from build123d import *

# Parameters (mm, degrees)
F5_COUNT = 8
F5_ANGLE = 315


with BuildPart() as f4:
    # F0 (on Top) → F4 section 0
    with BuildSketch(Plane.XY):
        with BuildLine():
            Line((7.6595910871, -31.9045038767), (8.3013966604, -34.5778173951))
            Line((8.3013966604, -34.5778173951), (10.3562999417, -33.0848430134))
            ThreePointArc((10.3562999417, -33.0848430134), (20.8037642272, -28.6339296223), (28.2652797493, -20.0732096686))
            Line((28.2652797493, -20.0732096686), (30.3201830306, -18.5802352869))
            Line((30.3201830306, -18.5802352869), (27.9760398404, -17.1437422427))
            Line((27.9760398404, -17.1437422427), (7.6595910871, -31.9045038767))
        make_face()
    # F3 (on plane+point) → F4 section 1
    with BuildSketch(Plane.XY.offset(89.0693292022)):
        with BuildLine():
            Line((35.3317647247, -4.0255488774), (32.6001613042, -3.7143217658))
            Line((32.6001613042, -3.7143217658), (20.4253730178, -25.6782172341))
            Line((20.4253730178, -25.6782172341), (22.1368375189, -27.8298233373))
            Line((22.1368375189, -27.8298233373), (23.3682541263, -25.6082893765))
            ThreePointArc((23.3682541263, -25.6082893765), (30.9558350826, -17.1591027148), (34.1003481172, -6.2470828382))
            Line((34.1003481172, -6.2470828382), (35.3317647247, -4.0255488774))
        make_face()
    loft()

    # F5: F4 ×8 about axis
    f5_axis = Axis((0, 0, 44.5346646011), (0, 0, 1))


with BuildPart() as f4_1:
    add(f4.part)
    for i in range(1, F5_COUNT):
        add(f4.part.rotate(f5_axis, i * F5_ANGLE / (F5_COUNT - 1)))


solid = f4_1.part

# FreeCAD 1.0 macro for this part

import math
import FreeCAD as App
import Part
import Sketcher
from FreeCAD import Vector
Q = App.Units.Quantity

doc = App.newDocument("Part")
body = doc.addObject("PartDesign::Body", "Body")

sketch1 = body.newObject("Sketcher::SketchObject", "Sketch")
sketch1.AttachmentSupport = (doc.getObject("XY_Plane"), [""])
sketch1.MapMode = "FlatFace"
sketch1.addGeometry(Part.LineSegment(Vector(7.7, -31.9, 0), Vector(8.3, -34.6, 0)), False)
sketch1.addGeometry(Part.LineSegment(Vector(8.3, -34.6, 0), Vector(10.4, -33.1, 0)), False)
sketch1.addGeometry(Part.ArcOfCircle(Part.Circle(Vector(5.9, -8.1, 0), Vector(0, 0, 1), 25.4), math.radians(-80), math.radians(-28)), False)
sketch1.addGeometry(Part.LineSegment(Vector(28.3, -20.1, 0), Vector(30.3, -18.6, 0)), False)
sketch1.addGeometry(Part.LineSegment(Vector(30.3, -18.6, 0), Vector(28, -17.1, 0)), False)
sketch1.addGeometry(Part.LineSegment(Vector(28, -17.1, 0), Vector(7.7, -31.9, 0)), False)
sketch1.addConstraint(Sketcher.Constraint("Coincident", 0, 2, 1, 1))
sketch1.addConstraint(Sketcher.Constraint("Coincident", 1, 2, 2, 1))
sketch1.addConstraint(Sketcher.Constraint("Coincident", 2, 2, 3, 1))
sketch1.addConstraint(Sketcher.Constraint("Coincident", 3, 2, 4, 1))
sketch1.addConstraint(Sketcher.Constraint("Coincident", 4, 2, 5, 1))
sketch1.addConstraint(Sketcher.Constraint("Coincident", 5, 2, 0, 1))
sketch1.addConstraint(Sketcher.Constraint("Parallel", 1, 3))
sketch1.addConstraint(Sketcher.Constraint("Parallel", 3, 5))
sketch1.addConstraint(Sketcher.Constraint("Equal", 1, 3))
sketch1.addConstraint(Sketcher.Constraint("Equal", 0, 4))
sketch1.addConstraint(Sketcher.Constraint("Angle", 1, Q("35.999996 deg")))
sketch1.addConstraint(Sketcher.Constraint("Distance", 1, Q("0.1 in")))
sketch1.addConstraint(Sketcher.Constraint("Angle", 0, Q("-76.500004 deg")))
sketch1.addConstraint(Sketcher.Constraint("Angle", 4, Q("148.499996 deg")))
sketch1.addConstraint(Sketcher.Constraint("Radius", 2, Q("25.385854 mm")))
sketch1.addConstraint(Sketcher.Constraint("DistanceX", -1, 1, 1, 2, Q("10.3563 mm")))
sketch1.addConstraint(Sketcher.Constraint("DistanceY", 1, 2, 4, 2, Q("15.941101 mm")))
sketch1.addConstraint(Sketcher.Constraint("DistanceY", 4, 2, 2, 3, Q("9.047401 mm")))
sketch1.addConstraint(Sketcher.Constraint("DistanceY", 2, 3, -1, 1, Q("8.096341 mm")))

sketch2 = body.newObject("Sketcher::SketchObject", "Sketch001")
sketch2.AttachmentSupport = (doc.getObject("XY_Plane"), [""])
sketch2.MapMode = "FlatFace"
sketch2.AttachmentOffset = App.Placement(Vector(0, 0, 89.069329), App.Rotation())
sketch2.addGeometry(Part.LineSegment(Vector(35.3, -4, 0), Vector(32.6, -3.7, 0)), False)
sketch2.addGeometry(Part.LineSegment(Vector(32.6, -3.7, 0), Vector(20.4, -25.7, 0)), False)
sketch2.addGeometry(Part.LineSegment(Vector(20.4, -25.7, 0), Vector(22.1, -27.8, 0)), False)
sketch2.addGeometry(Part.LineSegment(Vector(22.1, -27.8, 0), Vector(23.4, -25.6, 0)), False)
sketch2.addGeometry(Part.ArcOfCircle(Part.Circle(Vector(8.8, -4.9, 0), Vector(0, 0, 1), 25.4), math.radians(-55), math.radians(-3)), False)
sketch2.addGeometry(Part.LineSegment(Vector(34.1, -6.2, 0), Vector(35.3, -4, 0)), False)
sketch2.addConstraint(Sketcher.Constraint("Coincident", 0, 2, 1, 1))
sketch2.addConstraint(Sketcher.Constraint("Coincident", 1, 2, 2, 1))
sketch2.addConstraint(Sketcher.Constraint("Coincident", 2, 2, 3, 1))
sketch2.addConstraint(Sketcher.Constraint("Coincident", 3, 2, 4, 1))
sketch2.addConstraint(Sketcher.Constraint("Coincident", 4, 2, 5, 1))
sketch2.addConstraint(Sketcher.Constraint("Coincident", 5, 2, 0, 1))
sketch2.addConstraint(Sketcher.Constraint("Parallel", 1, 3))
sketch2.addConstraint(Sketcher.Constraint("Parallel", 3, 5))
sketch2.addConstraint(Sketcher.Constraint("Equal", 0, 2))
sketch2.addConstraint(Sketcher.Constraint("Equal", 3, 5))
sketch2.addConstraint(Sketcher.Constraint("Angle", 1, Q("-119.000004 deg")))
sketch2.addConstraint(Sketcher.Constraint("Distance", 3, Q("0.1 in")))
sketch2.addConstraint(Sketcher.Constraint("Angle", 0, Q("173.499996 deg")))
sketch2.addConstraint(Sketcher.Constraint("Angle", 2, Q("-51.500004 deg")))
sketch2.addConstraint(Sketcher.Constraint("Radius", 4, Q("25.385854 mm")))
sketch2.addConstraint(Sketcher.Constraint("DistanceY", 2, 2, 0, 2, Q("24.115502 mm")))
sketch2.addConstraint(Sketcher.Constraint("Distance", 1, Q("25.11251 mm")))
sketch2.addConstraint(Sketcher.Constraint("DistanceX", -1, 1, 0, 2, Q("32.600161 mm")))
sketch2.addConstraint(Sketcher.Constraint("DistanceY", 0, 2, -1, 1, Q("3.714322 mm")))

additiveloft = body.newObject("PartDesign::AdditiveLoft", "AdditiveLoft")
additiveloft.Profile = sketch1
additiveloft.Sections = [sketch2]
body2 = doc.addObject("PartDesign::Body", "Body001")
doc.recompute()

body2.BaseFeature = body
doc.recompute()

body3 = doc.addObject("PartDesign::Body", "Body002")
body3.BaseFeature = body
body3.Placement = App.Placement(Vector(0, 0, 0), App.Rotation(Vector(0, 0, 1), 45))
boolean = body2.newObject("PartDesign::Boolean", "Boolean")
boolean.Type = "Fuse"
boolean.addObjects([body3])
doc.recompute()

body4 = doc.addObject("PartDesign::Body", "Body003")
body4.BaseFeature = body
body4.Placement = App.Placement(Vector(0, 0, 0), App.Rotation(Vector(0, 0, 1), 90))
boolean2 = body2.newObject("PartDesign::Boolean", "Boolean001")
boolean2.Type = "Fuse"
boolean2.addObjects([body4])
doc.recompute()

body5 = doc.addObject("PartDesign::Body", "Body004")
body5.BaseFeature = body
body5.Placement = App.Placement(Vector(0, 0, 0), App.Rotation(Vector(0, 0, 1), 135))
boolean3 = body2.newObject("PartDesign::Boolean", "Boolean002")
boolean3.Type = "Fuse"
boolean3.addObjects([body5])
doc.recompute()

body6 = doc.addObject("PartDesign::Body", "Body005")
body6.BaseFeature = body
body6.Placement = App.Placement(Vector(0, 0, 0), App.Rotation(Vector(0, 0, 1), 180))
boolean4 = body2.newObject("PartDesign::Boolean", "Boolean003")
boolean4.Type = "Fuse"
boolean4.addObjects([body6])
doc.recompute()

body7 = doc.addObject("PartDesign::Body", "Body006")
body7.BaseFeature = body
body7.Placement = App.Placement(Vector(0, 0, 0), App.Rotation(Vector(0, 0, 1), 225))
boolean5 = body2.newObject("PartDesign::Boolean", "Boolean004")
boolean5.Type = "Fuse"
boolean5.addObjects([body7])
doc.recompute()

body8 = doc.addObject("PartDesign::Body", "Body007")
body8.BaseFeature = body
body8.Placement = App.Placement(Vector(0, 0, 0), App.Rotation(Vector(0, 0, 1), 270))
boolean6 = body2.newObject("PartDesign::Boolean", "Boolean005")
boolean6.Type = "Fuse"
boolean6.addObjects([body8])
doc.recompute()

body.Placement = App.Placement(Vector(0, 0, 0), App.Rotation(Vector(0, 0, 1), 315))
boolean7 = body2.newObject("PartDesign::Boolean", "Boolean006")
boolean7.Type = "Fuse"
boolean7.addObjects([body])

doc.recompute()
